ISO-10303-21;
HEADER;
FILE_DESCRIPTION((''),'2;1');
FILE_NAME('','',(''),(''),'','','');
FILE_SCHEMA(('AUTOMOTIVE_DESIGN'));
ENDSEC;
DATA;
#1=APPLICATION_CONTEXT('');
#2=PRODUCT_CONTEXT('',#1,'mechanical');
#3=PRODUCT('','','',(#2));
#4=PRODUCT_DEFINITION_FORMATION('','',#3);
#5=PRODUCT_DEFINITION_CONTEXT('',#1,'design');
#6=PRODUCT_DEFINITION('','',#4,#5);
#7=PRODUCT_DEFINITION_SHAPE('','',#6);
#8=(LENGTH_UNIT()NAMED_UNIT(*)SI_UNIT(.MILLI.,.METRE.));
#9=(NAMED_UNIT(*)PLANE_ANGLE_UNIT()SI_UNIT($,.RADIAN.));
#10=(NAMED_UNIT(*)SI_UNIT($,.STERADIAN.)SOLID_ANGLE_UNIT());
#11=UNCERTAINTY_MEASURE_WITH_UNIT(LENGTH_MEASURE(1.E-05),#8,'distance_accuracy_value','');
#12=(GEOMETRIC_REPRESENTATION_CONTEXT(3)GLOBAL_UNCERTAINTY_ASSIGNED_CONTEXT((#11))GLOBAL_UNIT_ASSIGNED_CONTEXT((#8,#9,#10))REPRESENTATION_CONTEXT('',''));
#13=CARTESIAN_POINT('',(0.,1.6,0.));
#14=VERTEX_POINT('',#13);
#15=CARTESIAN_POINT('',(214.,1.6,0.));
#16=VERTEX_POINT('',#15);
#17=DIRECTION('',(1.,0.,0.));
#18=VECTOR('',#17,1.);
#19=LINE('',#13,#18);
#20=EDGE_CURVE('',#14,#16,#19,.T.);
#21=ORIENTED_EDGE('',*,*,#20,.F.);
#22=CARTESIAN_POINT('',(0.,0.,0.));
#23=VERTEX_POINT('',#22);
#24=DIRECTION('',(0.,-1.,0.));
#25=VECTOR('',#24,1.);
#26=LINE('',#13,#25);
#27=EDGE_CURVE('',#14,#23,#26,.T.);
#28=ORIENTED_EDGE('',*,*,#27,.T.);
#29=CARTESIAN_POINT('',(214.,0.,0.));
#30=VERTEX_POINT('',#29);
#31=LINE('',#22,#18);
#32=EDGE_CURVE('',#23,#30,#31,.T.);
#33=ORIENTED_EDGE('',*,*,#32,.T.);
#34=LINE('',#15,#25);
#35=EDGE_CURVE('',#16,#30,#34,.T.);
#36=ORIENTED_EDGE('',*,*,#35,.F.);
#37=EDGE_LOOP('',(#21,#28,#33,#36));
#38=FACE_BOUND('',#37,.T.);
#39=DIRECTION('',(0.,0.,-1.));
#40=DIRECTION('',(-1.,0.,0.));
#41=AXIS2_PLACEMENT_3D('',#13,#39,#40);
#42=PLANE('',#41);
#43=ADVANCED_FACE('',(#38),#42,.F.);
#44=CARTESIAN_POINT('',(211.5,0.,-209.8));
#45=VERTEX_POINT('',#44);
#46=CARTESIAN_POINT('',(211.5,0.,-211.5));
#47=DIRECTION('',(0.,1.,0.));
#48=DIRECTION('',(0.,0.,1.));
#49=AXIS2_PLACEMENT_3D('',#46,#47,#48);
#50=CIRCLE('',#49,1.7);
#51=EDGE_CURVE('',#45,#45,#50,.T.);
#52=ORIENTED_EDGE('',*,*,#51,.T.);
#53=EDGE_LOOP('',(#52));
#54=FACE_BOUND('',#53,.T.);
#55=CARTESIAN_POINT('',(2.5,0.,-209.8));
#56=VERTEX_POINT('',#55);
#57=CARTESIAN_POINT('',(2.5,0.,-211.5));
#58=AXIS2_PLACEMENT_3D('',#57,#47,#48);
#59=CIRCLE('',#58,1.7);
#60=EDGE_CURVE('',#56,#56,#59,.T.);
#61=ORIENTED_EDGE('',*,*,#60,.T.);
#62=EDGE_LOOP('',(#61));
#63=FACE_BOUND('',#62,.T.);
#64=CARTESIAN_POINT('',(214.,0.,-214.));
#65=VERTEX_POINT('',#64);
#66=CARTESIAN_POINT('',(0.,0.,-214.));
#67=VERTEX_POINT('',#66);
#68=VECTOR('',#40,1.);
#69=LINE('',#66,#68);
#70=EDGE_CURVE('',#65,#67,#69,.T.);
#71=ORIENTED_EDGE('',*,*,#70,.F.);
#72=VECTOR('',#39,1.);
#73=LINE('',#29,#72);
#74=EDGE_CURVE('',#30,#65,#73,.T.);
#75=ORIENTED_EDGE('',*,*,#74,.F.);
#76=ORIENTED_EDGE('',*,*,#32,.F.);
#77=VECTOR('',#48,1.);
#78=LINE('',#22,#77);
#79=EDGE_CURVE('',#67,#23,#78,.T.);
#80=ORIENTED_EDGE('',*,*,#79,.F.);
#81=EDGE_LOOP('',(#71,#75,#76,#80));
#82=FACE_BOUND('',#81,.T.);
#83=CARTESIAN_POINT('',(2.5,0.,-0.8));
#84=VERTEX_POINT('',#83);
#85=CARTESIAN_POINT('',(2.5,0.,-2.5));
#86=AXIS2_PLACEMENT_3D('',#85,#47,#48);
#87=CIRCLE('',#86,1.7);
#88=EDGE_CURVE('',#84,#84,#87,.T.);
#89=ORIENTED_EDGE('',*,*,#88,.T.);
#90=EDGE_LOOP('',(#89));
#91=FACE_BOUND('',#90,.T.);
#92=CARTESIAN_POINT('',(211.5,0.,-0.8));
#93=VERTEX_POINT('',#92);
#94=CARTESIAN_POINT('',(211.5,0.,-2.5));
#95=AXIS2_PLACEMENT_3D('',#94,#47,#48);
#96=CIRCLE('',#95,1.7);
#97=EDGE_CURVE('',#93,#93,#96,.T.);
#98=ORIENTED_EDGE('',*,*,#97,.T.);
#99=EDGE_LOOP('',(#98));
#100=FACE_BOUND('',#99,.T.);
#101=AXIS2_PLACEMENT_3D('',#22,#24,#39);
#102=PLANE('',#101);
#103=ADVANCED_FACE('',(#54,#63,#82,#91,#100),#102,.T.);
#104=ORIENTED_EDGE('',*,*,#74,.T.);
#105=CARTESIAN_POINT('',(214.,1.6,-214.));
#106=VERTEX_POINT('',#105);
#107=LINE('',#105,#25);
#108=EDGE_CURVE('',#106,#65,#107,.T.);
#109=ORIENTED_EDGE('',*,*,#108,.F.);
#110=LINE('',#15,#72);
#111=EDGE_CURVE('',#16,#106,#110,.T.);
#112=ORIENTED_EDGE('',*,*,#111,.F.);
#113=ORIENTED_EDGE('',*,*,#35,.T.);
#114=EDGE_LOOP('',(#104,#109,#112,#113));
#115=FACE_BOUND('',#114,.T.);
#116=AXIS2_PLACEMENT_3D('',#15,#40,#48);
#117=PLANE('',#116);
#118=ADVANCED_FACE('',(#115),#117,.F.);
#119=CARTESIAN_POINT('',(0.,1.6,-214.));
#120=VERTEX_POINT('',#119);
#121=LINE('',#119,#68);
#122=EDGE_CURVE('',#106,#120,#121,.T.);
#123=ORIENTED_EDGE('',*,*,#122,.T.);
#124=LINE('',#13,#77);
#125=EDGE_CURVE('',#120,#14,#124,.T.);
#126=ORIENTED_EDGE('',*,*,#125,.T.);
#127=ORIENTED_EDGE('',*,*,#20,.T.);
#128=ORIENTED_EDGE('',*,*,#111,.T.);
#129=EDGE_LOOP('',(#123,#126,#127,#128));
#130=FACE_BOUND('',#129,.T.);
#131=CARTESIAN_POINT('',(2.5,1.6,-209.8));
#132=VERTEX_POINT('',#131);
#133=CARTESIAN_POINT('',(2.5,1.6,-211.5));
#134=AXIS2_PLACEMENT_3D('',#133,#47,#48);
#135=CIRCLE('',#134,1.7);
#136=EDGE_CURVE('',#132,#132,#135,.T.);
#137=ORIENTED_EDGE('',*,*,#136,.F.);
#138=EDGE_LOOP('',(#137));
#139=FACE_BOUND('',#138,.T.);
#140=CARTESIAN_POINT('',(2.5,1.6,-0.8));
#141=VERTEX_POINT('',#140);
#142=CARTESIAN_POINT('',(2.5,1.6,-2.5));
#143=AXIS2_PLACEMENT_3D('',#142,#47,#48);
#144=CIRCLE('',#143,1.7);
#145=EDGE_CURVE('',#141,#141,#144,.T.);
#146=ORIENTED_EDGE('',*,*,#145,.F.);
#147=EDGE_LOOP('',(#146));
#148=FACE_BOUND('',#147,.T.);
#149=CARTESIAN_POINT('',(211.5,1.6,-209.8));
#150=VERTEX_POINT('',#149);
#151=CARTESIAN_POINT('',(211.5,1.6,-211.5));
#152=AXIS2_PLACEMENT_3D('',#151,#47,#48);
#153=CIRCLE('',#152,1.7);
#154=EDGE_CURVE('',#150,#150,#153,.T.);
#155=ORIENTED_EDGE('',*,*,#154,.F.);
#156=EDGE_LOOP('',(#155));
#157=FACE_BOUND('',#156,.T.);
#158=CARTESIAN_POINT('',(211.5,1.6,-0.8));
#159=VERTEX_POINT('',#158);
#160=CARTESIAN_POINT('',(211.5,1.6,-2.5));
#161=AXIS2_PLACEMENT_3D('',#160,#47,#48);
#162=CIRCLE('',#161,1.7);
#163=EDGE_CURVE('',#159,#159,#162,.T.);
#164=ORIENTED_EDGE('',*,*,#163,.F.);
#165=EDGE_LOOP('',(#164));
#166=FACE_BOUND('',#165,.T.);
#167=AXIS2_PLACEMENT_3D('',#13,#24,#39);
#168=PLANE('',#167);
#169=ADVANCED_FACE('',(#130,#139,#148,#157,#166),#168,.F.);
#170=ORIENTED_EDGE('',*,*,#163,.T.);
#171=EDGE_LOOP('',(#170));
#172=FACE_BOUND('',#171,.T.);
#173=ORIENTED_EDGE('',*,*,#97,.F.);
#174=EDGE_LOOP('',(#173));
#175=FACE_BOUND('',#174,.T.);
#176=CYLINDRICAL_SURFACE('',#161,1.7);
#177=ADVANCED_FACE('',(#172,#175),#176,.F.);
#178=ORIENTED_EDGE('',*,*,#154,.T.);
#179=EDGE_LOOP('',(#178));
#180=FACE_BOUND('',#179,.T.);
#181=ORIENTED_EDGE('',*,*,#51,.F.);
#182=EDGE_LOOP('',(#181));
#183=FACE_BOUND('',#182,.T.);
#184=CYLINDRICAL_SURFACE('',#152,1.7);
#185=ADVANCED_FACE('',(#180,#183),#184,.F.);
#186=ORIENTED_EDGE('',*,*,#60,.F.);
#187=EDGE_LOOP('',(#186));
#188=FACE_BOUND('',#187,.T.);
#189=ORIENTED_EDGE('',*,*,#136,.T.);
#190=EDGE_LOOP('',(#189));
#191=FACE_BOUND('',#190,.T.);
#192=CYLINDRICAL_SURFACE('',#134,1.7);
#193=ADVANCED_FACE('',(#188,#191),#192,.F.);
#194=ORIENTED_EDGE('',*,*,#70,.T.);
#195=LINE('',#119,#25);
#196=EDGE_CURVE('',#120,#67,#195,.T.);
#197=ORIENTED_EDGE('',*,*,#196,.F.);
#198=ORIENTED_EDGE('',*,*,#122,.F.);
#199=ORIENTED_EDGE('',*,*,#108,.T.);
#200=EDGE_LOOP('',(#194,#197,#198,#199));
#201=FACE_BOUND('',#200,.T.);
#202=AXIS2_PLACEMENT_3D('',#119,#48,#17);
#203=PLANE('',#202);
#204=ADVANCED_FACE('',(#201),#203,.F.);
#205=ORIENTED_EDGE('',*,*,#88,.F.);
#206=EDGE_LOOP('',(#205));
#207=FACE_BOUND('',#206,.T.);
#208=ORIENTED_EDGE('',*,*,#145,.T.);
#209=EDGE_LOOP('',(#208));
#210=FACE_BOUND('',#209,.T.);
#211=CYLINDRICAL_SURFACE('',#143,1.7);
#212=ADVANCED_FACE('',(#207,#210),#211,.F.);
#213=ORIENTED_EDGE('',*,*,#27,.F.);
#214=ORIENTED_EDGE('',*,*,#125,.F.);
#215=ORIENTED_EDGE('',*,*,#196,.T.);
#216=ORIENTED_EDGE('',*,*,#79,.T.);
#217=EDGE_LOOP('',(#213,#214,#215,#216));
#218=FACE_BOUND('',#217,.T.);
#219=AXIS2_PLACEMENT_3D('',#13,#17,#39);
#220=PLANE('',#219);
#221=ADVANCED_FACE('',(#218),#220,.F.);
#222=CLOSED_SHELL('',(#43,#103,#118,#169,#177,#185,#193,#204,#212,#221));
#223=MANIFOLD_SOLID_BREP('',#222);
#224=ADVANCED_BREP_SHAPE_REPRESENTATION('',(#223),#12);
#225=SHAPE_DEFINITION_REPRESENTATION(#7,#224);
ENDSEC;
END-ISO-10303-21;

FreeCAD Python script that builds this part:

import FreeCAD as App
import Part
import Sketcher

V = App.Vector
Q = App.Units.Quantity

doc = App.newDocument("Part")
params = doc.addObject("Spreadsheet::Sheet", "Params")
for row, (alias, value) in enumerate([
    ("sketch1_width", "214 mm"),
    ("pad1_length", "1.6 mm"),
    ("sketch2_diameter", "3.4 mm"),
    ("hole_diameter", "3.4 mm"),
], start=1):
    params.set(f"A{row}", alias)
    params.set(f"B{row}", "=" + value)
    params.setAlias(f"B{row}", alias)

body = doc.addObject("PartDesign::Body", "Body")

# Sketch on XZ plane
sketch1 = body.newObject("Sketcher::SketchObject", "Sketch")
sketch1.AttachmentSupport = (doc.getObject("XZ_Plane"), [""])
sketch1.MapMode = "FlatFace"
sketch1.addGeometry([
    Part.LineSegment(V(0, -214, 0), V(0, 0, 0)),
    Part.LineSegment(V(0, 0, 0), V(214, 0, 0)),
    Part.LineSegment(V(214, 0, 0), V(214, -214, 0)),
    Part.LineSegment(V(214, -214, 0), V(0, -214, 0)),
], False)
sketch1.addConstraint([
    Sketcher.Constraint("Coincident", 0, 2, 1, 1),
    Sketcher.Constraint("Coincident", 1, 2, 2, 1),
    Sketcher.Constraint("Coincident", 2, 2, 3, 1),
    Sketcher.Constraint("Coincident", 3, 2, 0, 1),
    Sketcher.Constraint("Vertical", 0),
    Sketcher.Constraint("Horizontal", 1),
    Sketcher.Constraint("Vertical", 2),
    Sketcher.Constraint("Horizontal", 3),
    Sketcher.Constraint("Coincident", 0, 2, -1, 1),
    Sketcher.Constraint("Equal", 3, 0),
    Sketcher.Constraint("DistanceX", 1, 1, 1, 2, Q("214 mm")),
])
sketch1.setExpression("Constraints[10]", "Params.sketch1_width")
pad1 = body.newObject("PartDesign::Pad", "Pad")
pad1.Profile = sketch1
pad1.setExpression("Length", "Params.pad1_length")
pad1.Reversed = True

# Sketch on XZ plane
sketch2 = body.newObject("Sketcher::SketchObject", "Sketch001")
sketch2.AttachmentSupport = (doc.getObject("XZ_Plane"), [""])
sketch2.MapMode = "FlatFace"
sketch2.AttachmentOffset = App.Placement(V(0, 0, -1.6), App.Rotation())
sketch2.addGeometry([
    Part.Circle(V(2.5, -211.5, 0), V(0, 0, 1), 1.7),
    Part.Circle(V(211.5, -211.5, 0), V(0, 0, 1), 1.7),
    Part.Circle(V(211.5, -2.5, 0), V(0, 0, 1), 1.7),
    Part.Circle(V(2.5, -2.5, 0), V(0, 0, 1), 1.7),
], False)
sketch2.addConstraint([
    Sketcher.Constraint("Equal", 0, 1),
    Sketcher.Constraint("Equal", 1, 2),
    Sketcher.Constraint("Equal", 2, 3),
    Sketcher.Constraint("Horizontal", 0, 3, 1, 3),
    Sketcher.Constraint("Horizontal", 2, 3, 3, 3),
    Sketcher.Constraint("Vertical", 1, 3, 2, 3),
    Sketcher.Constraint("Vertical", 0, 3, 3, 3),
    Sketcher.Constraint("Diameter", 0, Q("3.4 mm")),
    Sketcher.Constraint("DistanceX", 0, 3, 1, 3, Q("209 mm")),
    Sketcher.Constraint("DistanceY", 1, 3, 2, 3, Q("209 mm")),
    Sketcher.Constraint("DistanceX", -1, 1, 0, 3, Q("2.5 mm")),
    Sketcher.Constraint("DistanceY", 0, 3, -1, 1, Q("211.5 mm")),
])
sketch2.setExpression("Constraints[7]", "Params.sketch2_diameter")
doc.recompute()
hole = body.newObject("PartDesign::Hole", "Hole")
hole.Profile = sketch2
hole.ThreadType = "None"
hole.setExpression("Diameter", "Params.hole_diameter")
hole.DepthType = "ThroughAll"
hole.Reversed = True

doc.recompute()
